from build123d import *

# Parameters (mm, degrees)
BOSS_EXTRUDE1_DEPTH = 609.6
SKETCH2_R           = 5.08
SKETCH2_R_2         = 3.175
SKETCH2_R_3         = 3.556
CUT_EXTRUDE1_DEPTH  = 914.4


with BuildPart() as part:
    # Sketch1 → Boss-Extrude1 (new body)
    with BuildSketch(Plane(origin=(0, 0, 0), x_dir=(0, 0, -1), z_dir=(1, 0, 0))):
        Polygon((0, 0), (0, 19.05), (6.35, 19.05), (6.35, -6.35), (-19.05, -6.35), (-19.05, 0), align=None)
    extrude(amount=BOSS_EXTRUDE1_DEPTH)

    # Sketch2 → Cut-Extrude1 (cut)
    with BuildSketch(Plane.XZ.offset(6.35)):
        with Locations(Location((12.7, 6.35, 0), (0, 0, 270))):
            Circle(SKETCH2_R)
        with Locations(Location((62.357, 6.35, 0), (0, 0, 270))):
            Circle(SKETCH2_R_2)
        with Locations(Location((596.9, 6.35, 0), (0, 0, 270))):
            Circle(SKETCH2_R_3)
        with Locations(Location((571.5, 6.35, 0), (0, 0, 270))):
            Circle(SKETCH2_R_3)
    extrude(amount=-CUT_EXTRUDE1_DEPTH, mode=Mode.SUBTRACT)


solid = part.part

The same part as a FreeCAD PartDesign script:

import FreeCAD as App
import Part
import Sketcher

V = App.Vector
Q = App.Units.Quantity


def add_polygon(sketch, points):
    """Adds a closed chain of lines whose ends are joined by coincident constraints."""
    first, n = sketch.GeometryCount, len(points)
    for a, b in zip(points, points[1:] + points[:1]):
        sketch.addGeometry(Part.LineSegment(App.Vector(*a, 0), App.Vector(*b, 0)), False)
    for i in range(n):
        sketch.addConstraint(Sketcher.Constraint("Coincident", first + i, 2, first + (i + 1) % n, 1))

doc = App.newDocument("Part")
body = doc.addObject("PartDesign::Body", "Body")

# Sketch on YZ plane
sketch1 = doc.addObject("Sketcher::SketchObject", "Sketch")
body.addObject(sketch1)
sketch1.AttachmentSupport = (doc.YZ_Plane, [""])
sketch1.MapMode = "FlatFace"
add_polygon(sketch1, [(19.05, 0), (0, 0), (0, 19.05), (-6.35, 19.05), (-6.35, -6.35), (19.05, -6.35)])  # lines 0-5
sketch1.addConstraint(Sketcher.Constraint("Horizontal", 0))
sketch1.addConstraint(Sketcher.Constraint("Vertical", 1))
sketch1.addConstraint(Sketcher.Constraint("Horizontal", 2))
sketch1.addConstraint(Sketcher.Constraint("Vertical", 3))
sketch1.addConstraint(Sketcher.Constraint("Horizontal", 4))
sketch1.addConstraint(Sketcher.Constraint("Vertical", 5))
sketch1.addConstraint(Sketcher.Constraint("Coincident", 0, 2, -1, 1))
sketch1.addConstraint(Sketcher.Constraint("Equal", 0, 1))
sketch1.addConstraint(Sketcher.Constraint("Equal", 4, 3))
sketch1.addConstraint(Sketcher.Constraint("DistanceX", 4, 1, 4, 2, Q("1 in")))
sketch1.addConstraint(Sketcher.Constraint("DistanceX", 0, 2, 0, 1, Q("0.75 in")))
pad1 = doc.addObject("PartDesign::Pad", "Pad")
body.addObject(pad1)
pad1.Profile = sketch1
pad1.Length = Q("24 in")

# Sketch on XZ plane
sketch2 = doc.addObject("Sketcher::SketchObject", "Sketch001")
body.addObject(sketch2)
sketch2.AttachmentSupport = (doc.XZ_Plane, [""])
sketch2.MapMode = "FlatFace"
sketch2.AttachmentOffset = App.Placement(V(0, 0, 0.25 * 25.4), App.Rotation())
sketch2.addGeometry(Part.Circle(V(12.7, 6.35, 0), V(0, 0, 1), 5.08), False)
sketch2.addGeometry(Part.Circle(V(62.357, 6.35, 0), V(0, 0, 1), 3.175), False)
sketch2.addGeometry(Part.Circle(V(596.9, 6.35, 0), V(0, 0, 1), 3.556), False)
sketch2.addGeometry(Part.Circle(V(571.5, 6.35, 0), V(0, 0, 1), 3.556), False)
sketch2.addConstraint(Sketcher.Constraint("Equal", 2, 3))
sketch2.addConstraint(Sketcher.Constraint("Horizontal", 0, 3, 1, 3))
sketch2.addConstraint(Sketcher.Constraint("Horizontal", 1, 3, 2, 3))
sketch2.addConstraint(Sketcher.Constraint("Horizontal", 2, 3, 3, 3))
sketch2.addConstraint(Sketcher.Constraint("Diameter", 0, Q("0.4 in")))
sketch2.addConstraint(Sketcher.Constraint("Diameter", 1, Q("0.25 in")))
sketch2.addConstraint(Sketcher.Constraint("Diameter", 2, Q("0.28 in")))
sketch2.addConstraint(Sketcher.Constraint("DistanceX", 0, 3, 2, 3, Q("23 in")))
sketch2.addConstraint(Sketcher.Constraint("DistanceX", 3, 3, 2, 3, Q("1 in")))
sketch2.addConstraint(Sketcher.Constraint("DistanceX", -1, 1, 0, 3, Q("0.5 in")))
sketch2.addConstraint(Sketcher.Constraint("DistanceY", -1, 1, 0, 3, Q("0.25 in")))
sketch2.addConstraint(Sketcher.Constraint("DistanceX", -1, 1, 1, 3, Q("2.455 in")))
pocket1 = doc.addObject("PartDesign::Pocket", "Pocket")
body.addObject(pocket1)
pocket1.Profile = sketch2
pocket1.Length = Q("36 in")

doc.recompute()
